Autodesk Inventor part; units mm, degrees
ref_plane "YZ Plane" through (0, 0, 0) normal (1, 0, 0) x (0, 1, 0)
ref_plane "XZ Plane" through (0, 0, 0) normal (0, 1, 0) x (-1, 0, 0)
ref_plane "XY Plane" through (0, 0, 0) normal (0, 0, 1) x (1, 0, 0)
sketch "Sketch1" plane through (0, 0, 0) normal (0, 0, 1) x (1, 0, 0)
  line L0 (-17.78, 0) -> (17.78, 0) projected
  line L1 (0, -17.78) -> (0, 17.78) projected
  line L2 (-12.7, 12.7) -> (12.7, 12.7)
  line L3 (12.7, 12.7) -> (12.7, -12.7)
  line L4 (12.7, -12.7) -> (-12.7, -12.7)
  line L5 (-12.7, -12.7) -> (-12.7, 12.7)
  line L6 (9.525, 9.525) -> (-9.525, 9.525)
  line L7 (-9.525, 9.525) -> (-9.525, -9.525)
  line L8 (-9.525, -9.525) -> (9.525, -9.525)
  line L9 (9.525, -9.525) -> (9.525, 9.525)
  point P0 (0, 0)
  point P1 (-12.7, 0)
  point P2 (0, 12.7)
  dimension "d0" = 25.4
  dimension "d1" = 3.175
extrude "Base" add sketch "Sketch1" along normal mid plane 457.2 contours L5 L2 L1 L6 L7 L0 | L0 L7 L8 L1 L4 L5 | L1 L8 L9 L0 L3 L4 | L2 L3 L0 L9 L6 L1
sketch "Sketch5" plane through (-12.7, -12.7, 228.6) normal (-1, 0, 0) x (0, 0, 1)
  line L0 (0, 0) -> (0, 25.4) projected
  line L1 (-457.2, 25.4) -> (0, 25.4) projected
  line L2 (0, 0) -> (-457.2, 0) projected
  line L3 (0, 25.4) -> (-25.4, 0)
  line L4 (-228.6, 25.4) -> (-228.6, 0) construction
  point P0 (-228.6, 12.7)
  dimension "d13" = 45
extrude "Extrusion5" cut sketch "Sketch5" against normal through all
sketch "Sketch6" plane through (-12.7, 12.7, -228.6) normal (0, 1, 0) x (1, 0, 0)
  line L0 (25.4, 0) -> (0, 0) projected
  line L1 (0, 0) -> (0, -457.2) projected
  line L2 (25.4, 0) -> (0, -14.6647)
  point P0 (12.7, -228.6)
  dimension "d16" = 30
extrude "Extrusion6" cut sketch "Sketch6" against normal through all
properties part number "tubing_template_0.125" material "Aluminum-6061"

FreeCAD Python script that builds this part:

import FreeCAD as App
import Part
import Sketcher
Q = App.Units.Quantity

doc = App.newDocument("Part")
params = doc.addObject("Spreadsheet::Sheet", "Params")
for row, (alias, value) in enumerate([
    ("sketch1_width", "1 in"),
    ("pad1_length", "18 in"),
    ("sketch2_width", "1 in"),
    ("sketch3_width", "1 in"),
], start=1):
    params.set(f"A{row}", alias)
    params.set(f"B{row}", "=" + value)
    params.setAlias(f"B{row}", alias)

body = doc.addObject("PartDesign::Body", "Body")

# Sketch on XY plane
sketch1 = doc.addObject("Sketcher::SketchObject", "Sketch")
body.addObject(sketch1)
sketch1.AttachmentSupport = (doc.XY_Plane, [""])
sketch1.MapMode = "FlatFace"
sketch1.addGeometry(Part.LineSegment(App.Vector(-13, 13, 0), App.Vector(-13, -13, 0)), False)
sketch1.addGeometry(Part.LineSegment(App.Vector(-13, -13, 0), App.Vector(13, -13, 0)), False)
sketch1.addGeometry(Part.LineSegment(App.Vector(13, -13, 0), App.Vector(13, 13, 0)), False)
sketch1.addGeometry(Part.LineSegment(App.Vector(13, 13, 0), App.Vector(-13, 13, 0)), False)
sketch1.addGeometry(Part.LineSegment(App.Vector(-10, 10, 0), App.Vector(10, 10, 0)), False)
sketch1.addGeometry(Part.LineSegment(App.Vector(10, 10, 0), App.Vector(10, -10, 0)), False)
sketch1.addGeometry(Part.LineSegment(App.Vector(10, -10, 0), App.Vector(-10, -10, 0)), False)
sketch1.addGeometry(Part.LineSegment(App.Vector(-10, -10, 0), App.Vector(-10, 10, 0)), False)
sketch1.addConstraint(Sketcher.Constraint("Coincident", 0, 2, 1, 1))
sketch1.addConstraint(Sketcher.Constraint("Coincident", 1, 2, 2, 1))
sketch1.addConstraint(Sketcher.Constraint("Coincident", 2, 2, 3, 1))
sketch1.addConstraint(Sketcher.Constraint("Coincident", 3, 2, 0, 1))
sketch1.addConstraint(Sketcher.Constraint("Coincident", 4, 2, 5, 1))
sketch1.addConstraint(Sketcher.Constraint("Coincident", 5, 2, 6, 1))
sketch1.addConstraint(Sketcher.Constraint("Coincident", 6, 2, 7, 1))
sketch1.addConstraint(Sketcher.Constraint("Coincident", 7, 2, 4, 1))
sketch1.addConstraint(Sketcher.Constraint("Vertical", 0))
sketch1.addConstraint(Sketcher.Constraint("Horizontal", 1))
sketch1.addConstraint(Sketcher.Constraint("Vertical", 2))
sketch1.addConstraint(Sketcher.Constraint("Horizontal", 3))
sketch1.addConstraint(Sketcher.Constraint("Horizontal", 4))
sketch1.addConstraint(Sketcher.Constraint("Vertical", 5))
sketch1.addConstraint(Sketcher.Constraint("Horizontal", 6))
sketch1.addConstraint(Sketcher.Constraint("Vertical", 7))
sketch1.addConstraint(Sketcher.Constraint("Symmetric", 0, 2, 2, 2, -1, 1))
sketch1.addConstraint(Sketcher.Constraint("Symmetric", 4, 2, 6, 2, -1, 1))
sketch1.addConstraint(Sketcher.Constraint("Equal", 3, 0))
sketch1.addConstraint(Sketcher.Constraint("Equal", 6, 5))
sketch1.addConstraint(Sketcher.Constraint("DistanceX", 1, 1, 1, 2, Q("1 in")))
sketch1.addConstraint(Sketcher.Constraint("DistanceX", 4, 2, 2, 2, Q("0.125 in")))
sketch1.setExpression("Constraints[20]", "Params.sketch1_width")
pad1 = doc.addObject("PartDesign::Pad", "Pad")
body.addObject(pad1)
pad1.Profile = sketch1
pad1.setExpression("Length", "Params.pad1_length")
pad1.Midplane = True

# Sketch on YZ plane
sketch2 = doc.addObject("Sketcher::SketchObject", "Sketch001")
body.addObject(sketch2)
sketch2.AttachmentSupport = (doc.YZ_Plane, [""])
sketch2.MapMode = "FlatFace"
sketch2.AttachmentOffset = App.Placement(App.Vector(0, 0, -0.5 * 25.4), App.Rotation())
sketch2.addGeometry(Part.LineSegment(App.Vector(-13, 203, 0), App.Vector(-13, 229, 0)), False)
sketch2.addGeometry(Part.LineSegment(App.Vector(-13, 229, 0), App.Vector(13, 229, 0)), False)
sketch2.addGeometry(Part.LineSegment(App.Vector(13, 229, 0), App.Vector(-13, 203, 0)), False)
sketch2.addConstraint(Sketcher.Constraint("Coincident", 0, 2, 1, 1))
sketch2.addConstraint(Sketcher.Constraint("Coincident", 1, 2, 2, 1))
sketch2.addConstraint(Sketcher.Constraint("Coincident", 2, 2, 0, 1))
sketch2.addConstraint(Sketcher.Constraint("Vertical", 0))
sketch2.addConstraint(Sketcher.Constraint("Horizontal", 1))
sketch2.addConstraint(Sketcher.Constraint("Equal", 1, 0))
sketch2.addConstraint(Sketcher.Constraint("DistanceX", 1, 1, 1, 2, Q("1 in")))
sketch2.addConstraint(Sketcher.Constraint("DistanceY", -1, 1, 0, 2, Q("9 in")))
sketch2.addConstraint(Sketcher.Constraint("DistanceX", 0, 2, -1, 1, Q("0.5 in")))
sketch2.setExpression("Constraints[6]", "Params.sketch2_width")
pocket1 = doc.addObject("PartDesign::Pocket", "Pocket")
body.addObject(pocket1)
pocket1.Profile = sketch2
pocket1.Type = "ThroughAll"
pocket1.Reversed = True

# Sketch on XZ plane
sketch3 = doc.addObject("Sketcher::SketchObject", "Sketch002")
body.addObject(sketch3)
sketch3.AttachmentSupport = (doc.XZ_Plane, [""])
sketch3.MapMode = "FlatFace"
sketch3.AttachmentOffset = App.Placement(App.Vector(0, 0, -0.5 * 25.4), App.Rotation())
sketch3.addGeometry(Part.LineSegment(App.Vector(-13, -214, 0), App.Vector(13, -229, 0)), False)
sketch3.addGeometry(Part.LineSegment(App.Vector(13, -229, 0), App.Vector(-13, -229, 0)), False)
sketch3.addGeometry(Part.LineSegment(App.Vector(-13, -229, 0), App.Vector(-13, -214, 0)), False)
sketch3.addConstraint(Sketcher.Constraint("Coincident", 0, 2, 1, 1))
sketch3.addConstraint(Sketcher.Constraint("Coincident", 1, 2, 2, 1))
sketch3.addConstraint(Sketcher.Constraint("Coincident", 2, 2, 0, 1))
sketch3.addConstraint(Sketcher.Constraint("Horizontal", 1))
sketch3.addConstraint(Sketcher.Constraint("Vertical", 2))
sketch3.addConstraint(Sketcher.Constraint("Angle", 0, Q("-30 deg")))
sketch3.addConstraint(Sketcher.Constraint("DistanceX", 1, 2, 1, 1, Q("1 in")))
sketch3.addConstraint(Sketcher.Constraint("DistanceY", 0, 2, -1, 1, Q("9 in")))
sketch3.addConstraint(Sketcher.Constraint("DistanceX", -1, 1, 0, 2, Q("0.5 in")))
sketch3.setExpression("Constraints[6]", "Params.sketch3_width")
pocket2 = doc.addObject("PartDesign::Pocket", "Pocket001")
body.addObject(pocket2)
pocket2.Profile = sketch3
pocket2.Type = "ThroughAll"
pocket2.Reversed = True

doc.recompute()
